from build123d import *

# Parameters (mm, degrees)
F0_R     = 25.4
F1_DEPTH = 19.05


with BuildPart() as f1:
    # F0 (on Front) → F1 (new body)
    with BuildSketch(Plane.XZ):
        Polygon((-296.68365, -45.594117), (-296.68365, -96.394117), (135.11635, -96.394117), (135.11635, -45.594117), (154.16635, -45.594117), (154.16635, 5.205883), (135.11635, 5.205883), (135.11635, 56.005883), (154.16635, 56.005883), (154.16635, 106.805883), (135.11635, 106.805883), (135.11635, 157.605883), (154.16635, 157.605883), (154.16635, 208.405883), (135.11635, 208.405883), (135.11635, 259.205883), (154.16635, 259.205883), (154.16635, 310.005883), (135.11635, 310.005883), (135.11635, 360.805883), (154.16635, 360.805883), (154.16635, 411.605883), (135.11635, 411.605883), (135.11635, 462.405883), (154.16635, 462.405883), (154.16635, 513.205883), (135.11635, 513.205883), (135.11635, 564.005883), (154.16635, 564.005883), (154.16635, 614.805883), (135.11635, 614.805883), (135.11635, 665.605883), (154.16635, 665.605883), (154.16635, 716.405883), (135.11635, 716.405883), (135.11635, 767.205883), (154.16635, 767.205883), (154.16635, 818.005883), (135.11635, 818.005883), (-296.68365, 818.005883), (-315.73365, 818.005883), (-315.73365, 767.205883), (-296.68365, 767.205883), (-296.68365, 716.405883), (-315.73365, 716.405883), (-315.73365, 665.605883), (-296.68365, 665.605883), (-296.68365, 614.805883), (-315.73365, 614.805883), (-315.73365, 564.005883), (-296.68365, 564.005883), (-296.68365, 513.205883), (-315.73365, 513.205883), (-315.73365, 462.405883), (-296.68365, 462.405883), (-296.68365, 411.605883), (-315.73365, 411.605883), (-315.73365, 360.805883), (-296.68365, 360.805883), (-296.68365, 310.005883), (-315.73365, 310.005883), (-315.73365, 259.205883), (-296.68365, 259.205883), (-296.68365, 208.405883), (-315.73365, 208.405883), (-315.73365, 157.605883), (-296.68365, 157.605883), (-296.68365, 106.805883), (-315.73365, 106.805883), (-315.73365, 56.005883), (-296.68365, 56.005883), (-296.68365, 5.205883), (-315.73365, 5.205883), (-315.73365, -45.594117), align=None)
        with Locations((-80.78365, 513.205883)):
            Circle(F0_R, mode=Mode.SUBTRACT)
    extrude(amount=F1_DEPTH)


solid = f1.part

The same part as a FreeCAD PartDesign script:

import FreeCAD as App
import Part
import Sketcher
Q = App.Units.Quantity


def add_polygon(sketch, points):
    """Adds a closed chain of lines whose ends are joined by coincident constraints."""
    first, n = sketch.GeometryCount, len(points)
    for a, b in zip(points, points[1:] + points[:1]):
        sketch.addGeometry(Part.LineSegment(App.Vector(*a, 0), App.Vector(*b, 0)), False)
    for i in range(n):
        sketch.addConstraint(Sketcher.Constraint("Coincident", first + i, 2, first + (i + 1) % n, 1))

doc = App.newDocument("Part")
body = doc.addObject("PartDesign::Body", "Body")

sketch1 = body.newObject("Sketcher::SketchObject", "Sketch")
sketch1.AttachmentSupport = (doc.getObject("XZ_Plane"), [""])
sketch1.MapMode = "FlatFace"
add_polygon(sketch1, [(-297, -46), (-297, -96), (135, -96), (135, -46), (154, -46), (154, 5), (135, 5), (135, 56), (154, 56), (154, 107), (135, 107), (135, 158), (154, 158), (154, 208), (135, 208), (135, 259), (154, 259), (154, 310), (135, 310), (135, 361), (154, 361), (154, 412), (135, 412), (135, 462), (154, 462), (154, 513), (135, 513), (135, 564), (154, 564), (154, 615), (135, 615), (135, 666), (154, 666), (154, 716), (135, 716), (135, 767), (154, 767), (154, 818), (-316, 818), (-316, 767), (-297, 767), (-297, 716), (-316, 716), (-316, 666), (-297, 666), (-297, 615), (-316, 615), (-316, 564), (-297, 564), (-297, 513), (-316, 513), (-316, 462), (-297, 462), (-297, 412), (-316, 412), (-316, 361), (-297, 361), (-297, 310), (-316, 310), (-316, 259), (-297, 259), (-297, 208), (-316, 208), (-316, 158), (-297, 158), (-297, 107), (-316, 107), (-316, 56), (-297, 56), (-297, 5), (-316, 5), (-316, -46)])
sketch1.addGeometry(Part.Circle(App.Vector(-81, 513, 0), App.Vector(0, 0, 1), 25), False)
sketch1.addConstraint([
    Sketcher.Constraint("Vertical", 0),
    Sketcher.Constraint("Horizontal", 1),
    Sketcher.Constraint("Vertical", 2),
    Sketcher.Constraint("Horizontal", 3),
    Sketcher.Constraint("Vertical", 4),
    Sketcher.Constraint("Horizontal", 5),
    Sketcher.Constraint("Vertical", 6),
    Sketcher.Constraint("Horizontal", 7),
    Sketcher.Constraint("Vertical", 8),
    Sketcher.Constraint("Horizontal", 9),
    Sketcher.Constraint("Vertical", 10),
    Sketcher.Constraint("Horizontal", 11),
    Sketcher.Constraint("Vertical", 12),
    Sketcher.Constraint("Horizontal", 13),
    Sketcher.Constraint("Vertical", 14),
    Sketcher.Constraint("Horizontal", 15),
    Sketcher.Constraint("Vertical", 16),
    Sketcher.Constraint("Horizontal", 17),
    Sketcher.Constraint("Vertical", 18),
    Sketcher.Constraint("Horizontal", 19),
    Sketcher.Constraint("Vertical", 20),
    Sketcher.Constraint("Horizontal", 21),
    Sketcher.Constraint("Vertical", 22),
    Sketcher.Constraint("Horizontal", 23),
    Sketcher.Constraint("Vertical", 24),
    Sketcher.Constraint("Horizontal", 25),
    Sketcher.Constraint("Vertical", 26),
    Sketcher.Constraint("Horizontal", 27),
    Sketcher.Constraint("Vertical", 28),
    Sketcher.Constraint("Horizontal", 29),
    Sketcher.Constraint("Vertical", 30),
    Sketcher.Constraint("Horizontal", 31),
    Sketcher.Constraint("Vertical", 32),
    Sketcher.Constraint("Horizontal", 33),
    Sketcher.Constraint("Vertical", 34),
    Sketcher.Constraint("Horizontal", 35),
    Sketcher.Constraint("Vertical", 36),
    Sketcher.Constraint("Horizontal", 37),
    Sketcher.Constraint("Vertical", 38),
    Sketcher.Constraint("Horizontal", 39),
    Sketcher.Constraint("Vertical", 40),
    Sketcher.Constraint("Horizontal", 41),
    Sketcher.Constraint("Vertical", 42),
    Sketcher.Constraint("Horizontal", 43),
    Sketcher.Constraint("Vertical", 44),
    Sketcher.Constraint("Horizontal", 45),
    Sketcher.Constraint("Vertical", 46),
    Sketcher.Constraint("Horizontal", 47),
    Sketcher.Constraint("Vertical", 48),
    Sketcher.Constraint("Horizontal", 49),
    Sketcher.Constraint("Vertical", 50),
    Sketcher.Constraint("Horizontal", 51),
    Sketcher.Constraint("Vertical", 52),
    Sketcher.Constraint("Horizontal", 53),
    Sketcher.Constraint("Vertical", 54),
    Sketcher.Constraint("Horizontal", 55),
    Sketcher.Constraint("Vertical", 56),
    Sketcher.Constraint("Horizontal", 57),
    Sketcher.Constraint("Vertical", 58),
    Sketcher.Constraint("Horizontal", 59),
    Sketcher.Constraint("Vertical", 60),
    Sketcher.Constraint("Horizontal", 61),
    Sketcher.Constraint("Vertical", 62),
    Sketcher.Constraint("Horizontal", 63),
    Sketcher.Constraint("Vertical", 64),
    Sketcher.Constraint("Horizontal", 65),
    Sketcher.Constraint("Vertical", 66),
    Sketcher.Constraint("Horizontal", 67),
    Sketcher.Constraint("Vertical", 68),
    Sketcher.Constraint("Horizontal", 69),
    Sketcher.Constraint("Vertical", 70),
    Sketcher.Constraint("Horizontal", 71),
    Sketcher.Constraint("Horizontal", 72, 3, 24, 2),
    Sketcher.Constraint("Horizontal", 35, 2, 38, 2),
    Sketcher.Constraint("Horizontal", 33, 2, 40, 2),
    Sketcher.Constraint("Horizontal", 31, 2, 42, 2),
    Sketcher.Constraint("Horizontal", 29, 2, 44, 2),
    Sketcher.Constraint("Horizontal", 27, 2, 46, 2),
    Sketcher.Constraint("Horizontal", 25, 2, 48, 2),
    Sketcher.Constraint("Horizontal", 23, 2, 50, 2),
    Sketcher.Constraint("Horizontal", 21, 2, 52, 2),
    Sketcher.Constraint("Horizontal", 19, 2, 54, 2),
    Sketcher.Constraint("Horizontal", 17, 2, 56, 2),
    Sketcher.Constraint("Horizontal", 15, 2, 58, 2),
    Sketcher.Constraint("Horizontal", 13, 2, 60, 2),
    Sketcher.Constraint("Horizontal", 11, 2, 62, 2),
    Sketcher.Constraint("Horizontal", 9, 2, 64, 2),
    Sketcher.Constraint("Horizontal", 7, 2, 66, 2),
    Sketcher.Constraint("Horizontal", 5, 2, 68, 2),
    Sketcher.Constraint("Horizontal", 3, 2, 70, 2),
    Sketcher.Constraint("Vertical", 2, 2, 5, 2),
    Sketcher.Constraint("Vertical", 4, 2, 7, 2),
    Sketcher.Constraint("Vertical", 6, 2, 9, 2),
    Sketcher.Constraint("Vertical", 8, 2, 11, 2),
    Sketcher.Constraint("Vertical", 10, 2, 13, 2),
    Sketcher.Constraint("Vertical", 12, 2, 15, 2),
    Sketcher.Constraint("Vertical", 14, 2, 17, 2),
    Sketcher.Constraint("Vertical", 16, 2, 19, 2),
    Sketcher.Constraint("Vertical", 18, 2, 21, 2),
    Sketcher.Constraint("Vertical", 20, 2, 23, 2),
    Sketcher.Constraint("Vertical", 22, 2, 25, 2),
    Sketcher.Constraint("Vertical", 24, 2, 27, 2),
    Sketcher.Constraint("Vertical", 26, 2, 29, 2),
    Sketcher.Constraint("Vertical", 28, 2, 31, 2),
    Sketcher.Constraint("Vertical", 30, 2, 33, 2),
    Sketcher.Constraint("Vertical", 32, 2, 35, 2),
    Sketcher.Constraint("Vertical", 0, 2, 39, 2),
    Sketcher.Constraint("Vertical", 38, 2, 41, 2),
    Sketcher.Constraint("Vertical", 40, 2, 43, 2),
    Sketcher.Constraint("Vertical", 42, 2, 45, 2),
    Sketcher.Constraint("Vertical", 44, 2, 47, 2),
    Sketcher.Constraint("Vertical", 46, 2, 49, 2),
    Sketcher.Constraint("Vertical", 48, 2, 51, 2),
    Sketcher.Constraint("Vertical", 50, 2, 53, 2),
    Sketcher.Constraint("Vertical", 52, 2, 55, 2),
    Sketcher.Constraint("Vertical", 54, 2, 57, 2),
    Sketcher.Constraint("Vertical", 56, 2, 59, 2),
    Sketcher.Constraint("Vertical", 58, 2, 61, 2),
    Sketcher.Constraint("Vertical", 60, 2, 63, 2),
    Sketcher.Constraint("Vertical", 62, 2, 65, 2),
    Sketcher.Constraint("Vertical", 64, 2, 67, 2),
    Sketcher.Constraint("Vertical", 66, 2, 69, 2),
    Sketcher.Constraint("Equal", 35, 39),
    Sketcher.Constraint("Equal", 2, 4),
    Sketcher.Constraint("Equal", 4, 6),
    Sketcher.Constraint("Equal", 6, 8),
    Sketcher.Constraint("Equal", 8, 10),
    Sketcher.Constraint("Equal", 10, 12),
    Sketcher.Constraint("Equal", 12, 14),
    Sketcher.Constraint("Equal", 14, 16),
    Sketcher.Constraint("Equal", 16, 18),
    Sketcher.Constraint("Equal", 18, 20),
    Sketcher.Constraint("Equal", 20, 22),
    Sketcher.Constraint("Equal", 22, 24),
    Sketcher.Constraint("Equal", 24, 26),
    Sketcher.Constraint("Equal", 26, 28),
    Sketcher.Constraint("Equal", 28, 30),
    Sketcher.Constraint("Equal", 30, 32),
    Sketcher.Constraint("Equal", 32, 34),
    Sketcher.Constraint("Equal", 34, 36),
    Sketcher.Constraint("Diameter", 72, Q("2 in")),
    Sketcher.Constraint("DistanceX", 1, 1, 1, 2, Q("17 in")),
    Sketcher.Constraint("DistanceY", 0, 2, 0, 1, Q("2 in")),
    Sketcher.Constraint("DistanceX", 37, 2, 37, 1, Q("18.5 in")),
    Sketcher.Constraint("DistanceX", 72, 3, -1, 1, Q("80.78365 mm")),
    Sketcher.Constraint("DistanceX", 0, 2, -1, 1, Q("296.68365 mm")),
    Sketcher.Constraint("DistanceY", -1, 1, 72, 3, Q("513.205883 mm")),
])
pad1 = body.newObject("PartDesign::Pad", "Pad")
pad1.Profile = sketch1
pad1.Length = Q("0.75 in")

doc.recompute()
